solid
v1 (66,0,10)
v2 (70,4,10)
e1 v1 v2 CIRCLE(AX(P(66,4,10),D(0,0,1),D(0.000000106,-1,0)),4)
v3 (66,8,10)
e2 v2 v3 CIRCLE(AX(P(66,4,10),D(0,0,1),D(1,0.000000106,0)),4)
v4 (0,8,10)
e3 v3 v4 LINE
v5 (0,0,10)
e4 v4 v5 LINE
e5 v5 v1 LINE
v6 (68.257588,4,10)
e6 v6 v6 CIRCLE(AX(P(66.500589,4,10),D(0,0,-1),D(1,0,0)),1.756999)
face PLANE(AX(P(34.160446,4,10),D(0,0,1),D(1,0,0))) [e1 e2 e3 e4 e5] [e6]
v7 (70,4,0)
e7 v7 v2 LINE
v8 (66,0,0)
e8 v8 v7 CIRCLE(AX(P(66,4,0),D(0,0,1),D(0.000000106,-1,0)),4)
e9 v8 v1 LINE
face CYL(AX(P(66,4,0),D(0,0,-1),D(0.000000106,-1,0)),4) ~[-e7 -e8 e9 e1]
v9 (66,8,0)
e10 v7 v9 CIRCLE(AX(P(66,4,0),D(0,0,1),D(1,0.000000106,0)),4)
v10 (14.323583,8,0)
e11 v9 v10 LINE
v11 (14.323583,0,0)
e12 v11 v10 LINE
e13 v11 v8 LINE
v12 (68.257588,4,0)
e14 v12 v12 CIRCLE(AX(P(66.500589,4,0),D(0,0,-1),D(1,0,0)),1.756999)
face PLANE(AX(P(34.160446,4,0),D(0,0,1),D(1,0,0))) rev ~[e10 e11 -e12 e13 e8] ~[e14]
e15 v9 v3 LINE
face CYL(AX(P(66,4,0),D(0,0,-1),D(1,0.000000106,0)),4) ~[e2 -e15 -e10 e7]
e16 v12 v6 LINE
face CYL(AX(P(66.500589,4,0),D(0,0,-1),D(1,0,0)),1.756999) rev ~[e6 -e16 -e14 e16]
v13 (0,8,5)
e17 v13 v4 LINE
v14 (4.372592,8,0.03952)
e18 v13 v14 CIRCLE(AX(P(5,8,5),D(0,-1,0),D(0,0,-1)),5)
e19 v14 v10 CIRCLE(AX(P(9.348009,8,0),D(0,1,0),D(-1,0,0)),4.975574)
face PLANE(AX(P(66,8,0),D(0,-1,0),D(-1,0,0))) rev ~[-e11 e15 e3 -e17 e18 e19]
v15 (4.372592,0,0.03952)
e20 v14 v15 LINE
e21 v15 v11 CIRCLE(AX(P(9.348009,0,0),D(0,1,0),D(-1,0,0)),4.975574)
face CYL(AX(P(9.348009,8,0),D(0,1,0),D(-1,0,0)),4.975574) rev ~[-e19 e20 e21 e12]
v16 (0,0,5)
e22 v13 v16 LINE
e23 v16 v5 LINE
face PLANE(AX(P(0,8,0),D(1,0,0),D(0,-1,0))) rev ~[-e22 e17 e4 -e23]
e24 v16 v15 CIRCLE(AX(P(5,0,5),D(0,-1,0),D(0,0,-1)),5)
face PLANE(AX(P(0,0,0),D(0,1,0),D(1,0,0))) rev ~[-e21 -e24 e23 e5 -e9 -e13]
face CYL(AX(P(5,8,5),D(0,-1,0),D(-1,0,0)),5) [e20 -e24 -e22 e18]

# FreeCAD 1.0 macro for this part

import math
import FreeCAD as App
import Part
import Sketcher

V = App.Vector
Q = App.Units.Quantity


def edges_at(feature, points):
    """Names of the edges that pass closest to the given points."""
    edges = feature.Shape.Edges
    near = lambda p: min(range(len(edges)), key=lambda i: edges[i].distToShape(Part.Vertex(*p))[0])
    return sorted({f"Edge{near(p) + 1}" for p in points})

doc = App.newDocument("Part")
body = doc.addObject("PartDesign::Body", "Body")

sketch1 = doc.addObject("Sketcher::SketchObject", "Sketch")
body.addObject(sketch1)
sketch1.AttachmentSupport = (doc.XY_Plane, [""])
sketch1.MapMode = "FlatFace"
sketch1.addGeometry([
    Part.LineSegment(V(0, 8, 0), V(0, 0, 0)),
    Part.LineSegment(V(0, 0, 0), V(66, 0, 0)),
    Part.ArcOfCircle(Part.Circle(V(66, 4, 0), V(0, 0, 1), 4), math.radians(-89.999994), math.radians(-0.000006)),
    Part.ArcOfCircle(Part.Circle(V(66, 4, 0), V(0, 0, 1), 4), math.radians(0.000006), math.radians(89.999994)),
    Part.LineSegment(V(66, 8, 0), V(0, 8, 0)),
], False)
sketch1.addConstraint([
    Sketcher.Constraint("Coincident", 0, 2, 1, 1),
    Sketcher.Constraint("Tangent", 1, 2, 2, 1),
    Sketcher.Constraint("Tangent", 2, 2, 3, 1),
    Sketcher.Constraint("Tangent", 3, 2, 4, 1),
    Sketcher.Constraint("Coincident", 4, 2, 0, 1),
    Sketcher.Constraint("Vertical", 0),
    Sketcher.Constraint("Horizontal", 1),
    Sketcher.Constraint("Horizontal", 4),
    Sketcher.Constraint("Coincident", 0, 2, -1, 1),
    Sketcher.Constraint("Equal", 2, 3),
    Sketcher.Constraint("Horizontal", 3, 3, 2, 2),
    Sketcher.Constraint("Radius", 2, Q("4 mm")),
    Sketcher.Constraint("DistanceX", 1, 1, 1, 2, Q("66 mm")),
])
pad1 = doc.addObject("PartDesign::Pad", "Pad")
body.addObject(pad1)
pad1.Profile = sketch1
pad1.Length = 10
doc.recompute()

fillet = doc.addObject("PartDesign::Fillet", "Fillet")
body.addObject(fillet)
fillet.Base = (pad1, edges_at(pad1, [(0, 4, 0)]))
fillet.Radius = 5

sketch2 = doc.addObject("Sketcher::SketchObject", "Sketch001")
body.addObject(sketch2)
sketch2.AttachmentSupport = (doc.XZ_Plane, [""])
sketch2.MapMode = "FlatFace"
sketch2.AttachmentOffset = App.Placement(V(0, 0, -8), App.Rotation())
sketch2.addGeometry(Part.Circle(V(9.348009, 0, 0), V(0, 0, 1), 4.975574), False)
sketch2.addConstraint([
    Sketcher.Constraint("PointOnObject", 0, 3, -1),
    Sketcher.Constraint("Diameter", 0, Q("9.951148 mm")),
    Sketcher.Constraint("DistanceX", -1, 1, 0, 3, Q("9.348009 mm")),
])
pocket1 = doc.addObject("PartDesign::Pocket", "Pocket")
body.addObject(pocket1)
pocket1.Profile = sketch2
pocket1.Length = 25
pocket1.Reversed = True

sketch3 = doc.addObject("Sketcher::SketchObject", "Sketch002")
body.addObject(sketch3)
sketch3.AttachmentSupport = (doc.XY_Plane, [""])
sketch3.MapMode = "FlatFace"
sketch3.addGeometry(Part.Circle(V(66.500589, 4, 0), V(0, 0, 1), 1.756999), False)
sketch3.addConstraint([
    Sketcher.Constraint("Diameter", 0, Q("3.513998 mm")),
    Sketcher.Constraint("DistanceY", -1, 1, 0, 3, Q("4 mm")),
    Sketcher.Constraint("DistanceX", -1, 1, 0, 3, Q("66.500589 mm")),
])
pocket2 = doc.addObject("PartDesign::Pocket", "Pocket001")
body.addObject(pocket2)
pocket2.Profile = sketch3
pocket2.Length = 25
pocket2.Reversed = True

doc.recompute()
